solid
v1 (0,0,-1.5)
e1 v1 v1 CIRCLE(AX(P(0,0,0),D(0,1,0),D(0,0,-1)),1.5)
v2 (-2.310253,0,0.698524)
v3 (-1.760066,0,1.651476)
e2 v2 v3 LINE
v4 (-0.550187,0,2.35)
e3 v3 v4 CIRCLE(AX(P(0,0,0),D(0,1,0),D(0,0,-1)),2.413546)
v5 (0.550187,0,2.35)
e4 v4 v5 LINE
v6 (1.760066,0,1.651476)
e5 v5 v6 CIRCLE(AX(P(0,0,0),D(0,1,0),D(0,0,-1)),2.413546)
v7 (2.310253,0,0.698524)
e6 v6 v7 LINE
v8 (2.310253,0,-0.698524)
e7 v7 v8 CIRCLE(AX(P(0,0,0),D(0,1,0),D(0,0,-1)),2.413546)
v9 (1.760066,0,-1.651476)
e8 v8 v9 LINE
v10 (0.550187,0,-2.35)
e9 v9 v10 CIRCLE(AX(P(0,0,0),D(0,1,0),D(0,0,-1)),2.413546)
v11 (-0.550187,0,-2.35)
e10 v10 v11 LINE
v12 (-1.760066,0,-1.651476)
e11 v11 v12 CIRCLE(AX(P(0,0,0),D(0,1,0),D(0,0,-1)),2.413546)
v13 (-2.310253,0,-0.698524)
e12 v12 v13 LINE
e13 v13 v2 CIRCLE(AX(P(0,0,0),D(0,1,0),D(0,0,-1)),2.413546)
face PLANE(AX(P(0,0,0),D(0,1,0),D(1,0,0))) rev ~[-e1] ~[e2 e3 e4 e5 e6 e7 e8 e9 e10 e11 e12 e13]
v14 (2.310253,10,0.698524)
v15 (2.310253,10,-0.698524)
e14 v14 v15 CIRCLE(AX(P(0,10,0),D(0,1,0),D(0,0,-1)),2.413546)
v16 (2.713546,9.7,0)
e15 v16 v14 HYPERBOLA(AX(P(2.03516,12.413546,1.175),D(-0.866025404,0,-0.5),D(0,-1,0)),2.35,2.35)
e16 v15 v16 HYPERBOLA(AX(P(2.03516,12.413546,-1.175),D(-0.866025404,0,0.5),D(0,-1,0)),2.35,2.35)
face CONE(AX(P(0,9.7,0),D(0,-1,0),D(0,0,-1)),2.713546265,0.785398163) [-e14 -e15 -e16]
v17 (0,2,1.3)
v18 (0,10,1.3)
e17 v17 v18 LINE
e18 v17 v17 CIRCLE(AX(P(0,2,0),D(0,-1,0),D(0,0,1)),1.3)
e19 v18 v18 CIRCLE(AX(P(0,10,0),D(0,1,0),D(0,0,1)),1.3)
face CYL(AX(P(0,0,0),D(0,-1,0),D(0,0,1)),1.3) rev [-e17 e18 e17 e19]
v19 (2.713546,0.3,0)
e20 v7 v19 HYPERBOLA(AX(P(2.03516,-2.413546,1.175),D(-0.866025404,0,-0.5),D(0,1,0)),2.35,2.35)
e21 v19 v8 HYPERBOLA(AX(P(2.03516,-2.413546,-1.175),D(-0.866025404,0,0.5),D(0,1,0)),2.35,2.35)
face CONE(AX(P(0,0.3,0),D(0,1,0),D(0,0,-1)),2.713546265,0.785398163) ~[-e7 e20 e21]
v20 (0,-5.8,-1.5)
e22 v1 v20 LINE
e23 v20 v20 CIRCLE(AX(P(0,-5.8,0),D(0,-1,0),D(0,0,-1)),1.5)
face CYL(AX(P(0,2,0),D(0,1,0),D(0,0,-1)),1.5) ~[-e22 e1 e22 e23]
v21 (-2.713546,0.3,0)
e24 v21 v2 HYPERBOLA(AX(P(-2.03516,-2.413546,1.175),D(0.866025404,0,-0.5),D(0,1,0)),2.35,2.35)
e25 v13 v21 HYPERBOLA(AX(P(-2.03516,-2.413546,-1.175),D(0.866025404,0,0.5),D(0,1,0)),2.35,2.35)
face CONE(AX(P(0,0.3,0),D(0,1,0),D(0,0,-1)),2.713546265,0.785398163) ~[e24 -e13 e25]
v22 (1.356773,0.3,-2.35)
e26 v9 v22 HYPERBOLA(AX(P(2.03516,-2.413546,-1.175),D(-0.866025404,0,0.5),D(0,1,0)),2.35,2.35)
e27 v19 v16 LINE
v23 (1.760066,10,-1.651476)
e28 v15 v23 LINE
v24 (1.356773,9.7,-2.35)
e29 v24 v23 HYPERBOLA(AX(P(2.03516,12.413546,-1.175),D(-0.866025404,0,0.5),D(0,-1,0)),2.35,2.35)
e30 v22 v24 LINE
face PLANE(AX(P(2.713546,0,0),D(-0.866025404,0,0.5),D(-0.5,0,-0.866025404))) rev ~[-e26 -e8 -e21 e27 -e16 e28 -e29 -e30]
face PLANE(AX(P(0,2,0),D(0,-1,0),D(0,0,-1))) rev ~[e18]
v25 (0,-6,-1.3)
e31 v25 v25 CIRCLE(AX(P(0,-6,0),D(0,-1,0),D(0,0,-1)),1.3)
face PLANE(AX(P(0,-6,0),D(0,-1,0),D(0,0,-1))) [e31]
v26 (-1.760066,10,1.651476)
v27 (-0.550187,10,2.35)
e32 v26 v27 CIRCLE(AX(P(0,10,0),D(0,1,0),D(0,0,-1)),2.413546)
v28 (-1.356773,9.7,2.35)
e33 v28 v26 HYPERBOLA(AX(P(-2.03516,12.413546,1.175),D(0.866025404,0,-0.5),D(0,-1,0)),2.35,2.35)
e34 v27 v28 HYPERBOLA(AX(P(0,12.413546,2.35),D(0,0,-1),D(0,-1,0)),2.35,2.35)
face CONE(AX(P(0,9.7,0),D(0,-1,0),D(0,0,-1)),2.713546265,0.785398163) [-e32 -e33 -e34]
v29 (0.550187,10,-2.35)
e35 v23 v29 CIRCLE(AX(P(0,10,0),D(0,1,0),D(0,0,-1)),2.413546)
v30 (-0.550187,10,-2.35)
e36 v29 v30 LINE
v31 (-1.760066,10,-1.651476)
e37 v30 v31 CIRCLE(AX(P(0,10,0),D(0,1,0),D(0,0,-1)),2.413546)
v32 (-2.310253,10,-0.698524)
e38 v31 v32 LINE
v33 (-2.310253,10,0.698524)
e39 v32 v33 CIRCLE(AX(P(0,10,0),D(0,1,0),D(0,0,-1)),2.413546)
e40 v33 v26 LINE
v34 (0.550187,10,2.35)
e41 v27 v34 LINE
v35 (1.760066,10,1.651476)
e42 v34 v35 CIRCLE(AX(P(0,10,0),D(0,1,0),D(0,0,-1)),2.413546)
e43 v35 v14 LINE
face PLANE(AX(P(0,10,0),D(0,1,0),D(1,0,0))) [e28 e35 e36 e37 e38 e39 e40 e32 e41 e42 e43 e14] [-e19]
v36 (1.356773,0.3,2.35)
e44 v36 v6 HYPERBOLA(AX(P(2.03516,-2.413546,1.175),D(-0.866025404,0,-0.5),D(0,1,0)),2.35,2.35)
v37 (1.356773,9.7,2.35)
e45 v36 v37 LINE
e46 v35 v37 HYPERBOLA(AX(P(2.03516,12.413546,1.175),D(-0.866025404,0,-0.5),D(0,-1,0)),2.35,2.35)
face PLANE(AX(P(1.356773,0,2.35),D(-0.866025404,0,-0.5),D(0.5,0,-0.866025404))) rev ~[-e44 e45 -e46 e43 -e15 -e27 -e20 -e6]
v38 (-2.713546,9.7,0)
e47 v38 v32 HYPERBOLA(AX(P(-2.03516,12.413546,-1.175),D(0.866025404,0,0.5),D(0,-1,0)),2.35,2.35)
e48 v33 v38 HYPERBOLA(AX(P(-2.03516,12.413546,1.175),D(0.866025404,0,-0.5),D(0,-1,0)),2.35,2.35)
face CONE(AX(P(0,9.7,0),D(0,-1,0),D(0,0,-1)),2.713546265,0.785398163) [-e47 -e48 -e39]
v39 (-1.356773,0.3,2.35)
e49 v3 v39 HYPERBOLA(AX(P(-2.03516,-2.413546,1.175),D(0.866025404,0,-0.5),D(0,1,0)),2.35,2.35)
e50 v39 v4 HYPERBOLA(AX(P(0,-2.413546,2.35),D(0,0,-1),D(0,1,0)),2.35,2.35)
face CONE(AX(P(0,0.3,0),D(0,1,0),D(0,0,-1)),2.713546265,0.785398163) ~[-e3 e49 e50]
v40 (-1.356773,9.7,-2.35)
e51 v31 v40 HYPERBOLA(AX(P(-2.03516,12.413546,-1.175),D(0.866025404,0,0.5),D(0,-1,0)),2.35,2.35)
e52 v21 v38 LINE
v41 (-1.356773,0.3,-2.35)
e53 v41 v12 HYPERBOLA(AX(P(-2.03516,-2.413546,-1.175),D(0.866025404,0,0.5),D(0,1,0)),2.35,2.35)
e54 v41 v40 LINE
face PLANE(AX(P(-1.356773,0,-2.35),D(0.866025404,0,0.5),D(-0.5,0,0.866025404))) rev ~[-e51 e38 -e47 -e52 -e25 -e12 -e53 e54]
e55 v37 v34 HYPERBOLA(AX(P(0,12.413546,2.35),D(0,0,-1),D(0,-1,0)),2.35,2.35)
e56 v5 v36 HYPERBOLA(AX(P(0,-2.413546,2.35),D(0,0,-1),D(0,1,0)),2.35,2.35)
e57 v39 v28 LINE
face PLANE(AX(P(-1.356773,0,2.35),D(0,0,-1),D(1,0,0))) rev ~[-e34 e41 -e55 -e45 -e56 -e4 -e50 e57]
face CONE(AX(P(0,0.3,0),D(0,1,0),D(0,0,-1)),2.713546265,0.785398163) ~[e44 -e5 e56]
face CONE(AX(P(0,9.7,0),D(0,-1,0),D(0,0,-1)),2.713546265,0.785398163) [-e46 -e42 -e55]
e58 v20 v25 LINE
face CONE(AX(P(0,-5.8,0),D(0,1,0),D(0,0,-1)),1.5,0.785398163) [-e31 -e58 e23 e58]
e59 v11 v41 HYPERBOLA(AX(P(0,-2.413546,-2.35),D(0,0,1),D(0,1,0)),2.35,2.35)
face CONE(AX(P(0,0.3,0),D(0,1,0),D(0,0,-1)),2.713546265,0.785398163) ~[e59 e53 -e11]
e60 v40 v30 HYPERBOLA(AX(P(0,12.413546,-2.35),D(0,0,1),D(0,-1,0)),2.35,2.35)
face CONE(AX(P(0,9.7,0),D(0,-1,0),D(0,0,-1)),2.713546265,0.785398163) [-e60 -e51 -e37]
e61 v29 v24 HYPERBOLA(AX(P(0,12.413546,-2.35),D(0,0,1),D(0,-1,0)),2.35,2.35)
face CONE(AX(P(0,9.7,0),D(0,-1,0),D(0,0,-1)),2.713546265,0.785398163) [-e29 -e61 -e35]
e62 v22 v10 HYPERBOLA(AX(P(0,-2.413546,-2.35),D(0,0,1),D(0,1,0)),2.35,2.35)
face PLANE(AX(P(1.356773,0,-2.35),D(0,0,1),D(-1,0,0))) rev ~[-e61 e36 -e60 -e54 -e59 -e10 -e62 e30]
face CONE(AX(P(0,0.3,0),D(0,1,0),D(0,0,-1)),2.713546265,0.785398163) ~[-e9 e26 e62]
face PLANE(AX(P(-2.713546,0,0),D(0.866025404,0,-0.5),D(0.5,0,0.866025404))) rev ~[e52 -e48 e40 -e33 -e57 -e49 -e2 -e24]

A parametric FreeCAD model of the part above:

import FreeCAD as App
import Part
import Sketcher
from FreeCAD import Vector
Q = App.Units.Quantity


def edges_at(feature, points):
    """Names of the edges that pass closest to the given points."""
    edges = feature.Shape.Edges
    near = lambda p: min(range(len(edges)), key=lambda i: edges[i].distToShape(Part.Vertex(*p))[0])
    return sorted({f"Edge{near(p) + 1}" for p in points})


def add_polygon(sketch, points):
    """Adds a closed chain of lines whose ends are joined by coincident constraints."""
    first, n = sketch.GeometryCount, len(points)
    for a, b in zip(points, points[1:] + points[:1]):
        sketch.addGeometry(Part.LineSegment(App.Vector(*a, 0), App.Vector(*b, 0)), False)
    for i in range(n):
        sketch.addConstraint(Sketcher.Constraint("Coincident", first + i, 2, first + (i + 1) % n, 1))

doc = App.newDocument("Part")
params = doc.addObject("Spreadsheet::Sheet", "Params")
for row, (alias, value) in enumerate([
    ("sketch1_diameter", "2.6 mm"),
    ("pad1_length", "10 mm"),
    ("sketch2_diameter", "3 mm"),
    ("pad2_length", "6 mm"),
    ("pad2_length2", "2 mm"),
    ("chamfer_size", "0.2 mm"),
    ("sketch3_width", "0.3 mm"),
    ("groove_angle", "360 deg"),
], start=1):
    params.set(f"A{row}", alias)
    params.set(f"B{row}", "=" + value)
    params.setAlias(f"B{row}", alias)

body = doc.addObject("PartDesign::Body", "Body")

# Sketch on XZ plane
sketch1 = body.newObject("Sketcher::SketchObject", "Sketch")
sketch1.AttachmentSupport = (doc.getObject("XZ_Plane"), [""])
sketch1.MapMode = "FlatFace"
add_polygon(sketch1, [(-2.7, 0), (-1.4, 2.4), (1.4, 2.4), (2.7, 0), (1.4, -2.4), (-1.4, -2.4)])  # lines 0-5
sketch1.addGeometry(Part.Circle(Vector(0, 0, 0), Vector(0, 0, 1), 1.3), False)  # 6
sketch1.addConstraint([
    Sketcher.Constraint("Horizontal", 1),
    Sketcher.Constraint("Horizontal", 4),
    Sketcher.Constraint("Coincident", 6, 3, -1, 1),
    Sketcher.Constraint("Symmetric", 0, 2, 3, 2, -1, 1),
    Sketcher.Constraint("Symmetric", 2, 2, 5, 2, -1, 1),
    Sketcher.Constraint("PointOnObject", 2, 2, -1),
    Sketcher.Constraint("Parallel", 2, 5),
    Sketcher.Constraint("Vertical", 1, 2, 3, 2),
    Sketcher.Constraint("Diameter", 6, Q("2.6 mm")),
    Sketcher.Constraint("Angle", 0, Q("60 deg")),
    Sketcher.Constraint("DistanceY", 3, 2, 1, 2, Q("4.7 mm")),
    Sketcher.Constraint("DistanceX", 1, 1, 1, 2, Q("2.713546 mm")),
])
sketch1.setExpression("Constraints[14]", "Params.sketch1_diameter")
pad1 = body.newObject("PartDesign::Pad", "Pad")
pad1.Profile = sketch1
pad1.setExpression("Length", "Params.pad1_length")
pad1.Reversed = True

# Sketch on XZ plane
sketch2 = body.newObject("Sketcher::SketchObject", "Sketch001")
sketch2.AttachmentSupport = (doc.getObject("XZ_Plane"), [""])
sketch2.MapMode = "FlatFace"
sketch2.addGeometry(Part.Circle(Vector(0, 0, 0), Vector(0, 0, 1), 1.5), False)
sketch2.addConstraint([
    Sketcher.Constraint("Coincident", 0, 3, -1, 1),
    Sketcher.Constraint("Diameter", 0, Q("3 mm")),
])
sketch2.setExpression("Constraints[1]", "Params.sketch2_diameter")
pad2 = body.newObject("PartDesign::Pad", "Pad001")
pad2.Profile = sketch2
pad2.Type = "TwoLengths"
pad2.setExpression("Length", "Params.pad2_length")
pad2.setExpression("Length2", "Params.pad2_length2")
doc.recompute()

chamfer = body.newObject("PartDesign::Chamfer", "Chamfer")
chamfer.Base = (pad2, edges_at(pad2, [(0, -6, 1.5)]))
chamfer.setExpression("Size", "Params.chamfer_size")

# Sketch on XY plane
sketch3 = body.newObject("Sketcher::SketchObject", "Sketch002")
sketch3.AttachmentSupport = (doc.getObject("XY_Plane"), [""])
sketch3.MapMode = "FlatFace"
add_polygon(sketch3, [(-2.71, 10), (-2.71, 9.7), (-2.41, 10)])  # lines 0-2
add_polygon(sketch3, [(-2.71, 0), (-2.41, 0), (-2.71, 0.3)])  # lines 3-5
sketch3.addConstraint([
    Sketcher.Constraint("Vertical", 0),
    Sketcher.Constraint("Horizontal", 2),
    Sketcher.Constraint("Horizontal", 3),
    Sketcher.Constraint("Vertical", 5),
    Sketcher.Constraint("PointOnObject", 3, 2, -1),
    Sketcher.Constraint("Perpendicular", 1, 4),
    Sketcher.Constraint("Vertical", 1, 2, 3, 2),
    Sketcher.Constraint("Vertical", 2, 2, 4, 2),
    Sketcher.Constraint("Equal", 3, 0),
    Sketcher.Constraint("DistanceX", 2, 2, 2, 1, Q("0.3 mm")),
    Sketcher.Constraint("DistanceY", -1, 1, 1, 2, Q("10 mm")),
    Sketcher.Constraint("DistanceX", 0, 2, -1, 1, Q("2.713546 mm")),
])
sketch3.setExpression("Constraints[15]", "Params.sketch3_width")
groove = body.newObject("PartDesign::Groove", "Groove")
groove.Profile = sketch3
groove.ReferenceAxis = (sketch3, ["V_Axis"])
groove.setExpression("Angle", "Params.groove_angle")

doc.recompute()
